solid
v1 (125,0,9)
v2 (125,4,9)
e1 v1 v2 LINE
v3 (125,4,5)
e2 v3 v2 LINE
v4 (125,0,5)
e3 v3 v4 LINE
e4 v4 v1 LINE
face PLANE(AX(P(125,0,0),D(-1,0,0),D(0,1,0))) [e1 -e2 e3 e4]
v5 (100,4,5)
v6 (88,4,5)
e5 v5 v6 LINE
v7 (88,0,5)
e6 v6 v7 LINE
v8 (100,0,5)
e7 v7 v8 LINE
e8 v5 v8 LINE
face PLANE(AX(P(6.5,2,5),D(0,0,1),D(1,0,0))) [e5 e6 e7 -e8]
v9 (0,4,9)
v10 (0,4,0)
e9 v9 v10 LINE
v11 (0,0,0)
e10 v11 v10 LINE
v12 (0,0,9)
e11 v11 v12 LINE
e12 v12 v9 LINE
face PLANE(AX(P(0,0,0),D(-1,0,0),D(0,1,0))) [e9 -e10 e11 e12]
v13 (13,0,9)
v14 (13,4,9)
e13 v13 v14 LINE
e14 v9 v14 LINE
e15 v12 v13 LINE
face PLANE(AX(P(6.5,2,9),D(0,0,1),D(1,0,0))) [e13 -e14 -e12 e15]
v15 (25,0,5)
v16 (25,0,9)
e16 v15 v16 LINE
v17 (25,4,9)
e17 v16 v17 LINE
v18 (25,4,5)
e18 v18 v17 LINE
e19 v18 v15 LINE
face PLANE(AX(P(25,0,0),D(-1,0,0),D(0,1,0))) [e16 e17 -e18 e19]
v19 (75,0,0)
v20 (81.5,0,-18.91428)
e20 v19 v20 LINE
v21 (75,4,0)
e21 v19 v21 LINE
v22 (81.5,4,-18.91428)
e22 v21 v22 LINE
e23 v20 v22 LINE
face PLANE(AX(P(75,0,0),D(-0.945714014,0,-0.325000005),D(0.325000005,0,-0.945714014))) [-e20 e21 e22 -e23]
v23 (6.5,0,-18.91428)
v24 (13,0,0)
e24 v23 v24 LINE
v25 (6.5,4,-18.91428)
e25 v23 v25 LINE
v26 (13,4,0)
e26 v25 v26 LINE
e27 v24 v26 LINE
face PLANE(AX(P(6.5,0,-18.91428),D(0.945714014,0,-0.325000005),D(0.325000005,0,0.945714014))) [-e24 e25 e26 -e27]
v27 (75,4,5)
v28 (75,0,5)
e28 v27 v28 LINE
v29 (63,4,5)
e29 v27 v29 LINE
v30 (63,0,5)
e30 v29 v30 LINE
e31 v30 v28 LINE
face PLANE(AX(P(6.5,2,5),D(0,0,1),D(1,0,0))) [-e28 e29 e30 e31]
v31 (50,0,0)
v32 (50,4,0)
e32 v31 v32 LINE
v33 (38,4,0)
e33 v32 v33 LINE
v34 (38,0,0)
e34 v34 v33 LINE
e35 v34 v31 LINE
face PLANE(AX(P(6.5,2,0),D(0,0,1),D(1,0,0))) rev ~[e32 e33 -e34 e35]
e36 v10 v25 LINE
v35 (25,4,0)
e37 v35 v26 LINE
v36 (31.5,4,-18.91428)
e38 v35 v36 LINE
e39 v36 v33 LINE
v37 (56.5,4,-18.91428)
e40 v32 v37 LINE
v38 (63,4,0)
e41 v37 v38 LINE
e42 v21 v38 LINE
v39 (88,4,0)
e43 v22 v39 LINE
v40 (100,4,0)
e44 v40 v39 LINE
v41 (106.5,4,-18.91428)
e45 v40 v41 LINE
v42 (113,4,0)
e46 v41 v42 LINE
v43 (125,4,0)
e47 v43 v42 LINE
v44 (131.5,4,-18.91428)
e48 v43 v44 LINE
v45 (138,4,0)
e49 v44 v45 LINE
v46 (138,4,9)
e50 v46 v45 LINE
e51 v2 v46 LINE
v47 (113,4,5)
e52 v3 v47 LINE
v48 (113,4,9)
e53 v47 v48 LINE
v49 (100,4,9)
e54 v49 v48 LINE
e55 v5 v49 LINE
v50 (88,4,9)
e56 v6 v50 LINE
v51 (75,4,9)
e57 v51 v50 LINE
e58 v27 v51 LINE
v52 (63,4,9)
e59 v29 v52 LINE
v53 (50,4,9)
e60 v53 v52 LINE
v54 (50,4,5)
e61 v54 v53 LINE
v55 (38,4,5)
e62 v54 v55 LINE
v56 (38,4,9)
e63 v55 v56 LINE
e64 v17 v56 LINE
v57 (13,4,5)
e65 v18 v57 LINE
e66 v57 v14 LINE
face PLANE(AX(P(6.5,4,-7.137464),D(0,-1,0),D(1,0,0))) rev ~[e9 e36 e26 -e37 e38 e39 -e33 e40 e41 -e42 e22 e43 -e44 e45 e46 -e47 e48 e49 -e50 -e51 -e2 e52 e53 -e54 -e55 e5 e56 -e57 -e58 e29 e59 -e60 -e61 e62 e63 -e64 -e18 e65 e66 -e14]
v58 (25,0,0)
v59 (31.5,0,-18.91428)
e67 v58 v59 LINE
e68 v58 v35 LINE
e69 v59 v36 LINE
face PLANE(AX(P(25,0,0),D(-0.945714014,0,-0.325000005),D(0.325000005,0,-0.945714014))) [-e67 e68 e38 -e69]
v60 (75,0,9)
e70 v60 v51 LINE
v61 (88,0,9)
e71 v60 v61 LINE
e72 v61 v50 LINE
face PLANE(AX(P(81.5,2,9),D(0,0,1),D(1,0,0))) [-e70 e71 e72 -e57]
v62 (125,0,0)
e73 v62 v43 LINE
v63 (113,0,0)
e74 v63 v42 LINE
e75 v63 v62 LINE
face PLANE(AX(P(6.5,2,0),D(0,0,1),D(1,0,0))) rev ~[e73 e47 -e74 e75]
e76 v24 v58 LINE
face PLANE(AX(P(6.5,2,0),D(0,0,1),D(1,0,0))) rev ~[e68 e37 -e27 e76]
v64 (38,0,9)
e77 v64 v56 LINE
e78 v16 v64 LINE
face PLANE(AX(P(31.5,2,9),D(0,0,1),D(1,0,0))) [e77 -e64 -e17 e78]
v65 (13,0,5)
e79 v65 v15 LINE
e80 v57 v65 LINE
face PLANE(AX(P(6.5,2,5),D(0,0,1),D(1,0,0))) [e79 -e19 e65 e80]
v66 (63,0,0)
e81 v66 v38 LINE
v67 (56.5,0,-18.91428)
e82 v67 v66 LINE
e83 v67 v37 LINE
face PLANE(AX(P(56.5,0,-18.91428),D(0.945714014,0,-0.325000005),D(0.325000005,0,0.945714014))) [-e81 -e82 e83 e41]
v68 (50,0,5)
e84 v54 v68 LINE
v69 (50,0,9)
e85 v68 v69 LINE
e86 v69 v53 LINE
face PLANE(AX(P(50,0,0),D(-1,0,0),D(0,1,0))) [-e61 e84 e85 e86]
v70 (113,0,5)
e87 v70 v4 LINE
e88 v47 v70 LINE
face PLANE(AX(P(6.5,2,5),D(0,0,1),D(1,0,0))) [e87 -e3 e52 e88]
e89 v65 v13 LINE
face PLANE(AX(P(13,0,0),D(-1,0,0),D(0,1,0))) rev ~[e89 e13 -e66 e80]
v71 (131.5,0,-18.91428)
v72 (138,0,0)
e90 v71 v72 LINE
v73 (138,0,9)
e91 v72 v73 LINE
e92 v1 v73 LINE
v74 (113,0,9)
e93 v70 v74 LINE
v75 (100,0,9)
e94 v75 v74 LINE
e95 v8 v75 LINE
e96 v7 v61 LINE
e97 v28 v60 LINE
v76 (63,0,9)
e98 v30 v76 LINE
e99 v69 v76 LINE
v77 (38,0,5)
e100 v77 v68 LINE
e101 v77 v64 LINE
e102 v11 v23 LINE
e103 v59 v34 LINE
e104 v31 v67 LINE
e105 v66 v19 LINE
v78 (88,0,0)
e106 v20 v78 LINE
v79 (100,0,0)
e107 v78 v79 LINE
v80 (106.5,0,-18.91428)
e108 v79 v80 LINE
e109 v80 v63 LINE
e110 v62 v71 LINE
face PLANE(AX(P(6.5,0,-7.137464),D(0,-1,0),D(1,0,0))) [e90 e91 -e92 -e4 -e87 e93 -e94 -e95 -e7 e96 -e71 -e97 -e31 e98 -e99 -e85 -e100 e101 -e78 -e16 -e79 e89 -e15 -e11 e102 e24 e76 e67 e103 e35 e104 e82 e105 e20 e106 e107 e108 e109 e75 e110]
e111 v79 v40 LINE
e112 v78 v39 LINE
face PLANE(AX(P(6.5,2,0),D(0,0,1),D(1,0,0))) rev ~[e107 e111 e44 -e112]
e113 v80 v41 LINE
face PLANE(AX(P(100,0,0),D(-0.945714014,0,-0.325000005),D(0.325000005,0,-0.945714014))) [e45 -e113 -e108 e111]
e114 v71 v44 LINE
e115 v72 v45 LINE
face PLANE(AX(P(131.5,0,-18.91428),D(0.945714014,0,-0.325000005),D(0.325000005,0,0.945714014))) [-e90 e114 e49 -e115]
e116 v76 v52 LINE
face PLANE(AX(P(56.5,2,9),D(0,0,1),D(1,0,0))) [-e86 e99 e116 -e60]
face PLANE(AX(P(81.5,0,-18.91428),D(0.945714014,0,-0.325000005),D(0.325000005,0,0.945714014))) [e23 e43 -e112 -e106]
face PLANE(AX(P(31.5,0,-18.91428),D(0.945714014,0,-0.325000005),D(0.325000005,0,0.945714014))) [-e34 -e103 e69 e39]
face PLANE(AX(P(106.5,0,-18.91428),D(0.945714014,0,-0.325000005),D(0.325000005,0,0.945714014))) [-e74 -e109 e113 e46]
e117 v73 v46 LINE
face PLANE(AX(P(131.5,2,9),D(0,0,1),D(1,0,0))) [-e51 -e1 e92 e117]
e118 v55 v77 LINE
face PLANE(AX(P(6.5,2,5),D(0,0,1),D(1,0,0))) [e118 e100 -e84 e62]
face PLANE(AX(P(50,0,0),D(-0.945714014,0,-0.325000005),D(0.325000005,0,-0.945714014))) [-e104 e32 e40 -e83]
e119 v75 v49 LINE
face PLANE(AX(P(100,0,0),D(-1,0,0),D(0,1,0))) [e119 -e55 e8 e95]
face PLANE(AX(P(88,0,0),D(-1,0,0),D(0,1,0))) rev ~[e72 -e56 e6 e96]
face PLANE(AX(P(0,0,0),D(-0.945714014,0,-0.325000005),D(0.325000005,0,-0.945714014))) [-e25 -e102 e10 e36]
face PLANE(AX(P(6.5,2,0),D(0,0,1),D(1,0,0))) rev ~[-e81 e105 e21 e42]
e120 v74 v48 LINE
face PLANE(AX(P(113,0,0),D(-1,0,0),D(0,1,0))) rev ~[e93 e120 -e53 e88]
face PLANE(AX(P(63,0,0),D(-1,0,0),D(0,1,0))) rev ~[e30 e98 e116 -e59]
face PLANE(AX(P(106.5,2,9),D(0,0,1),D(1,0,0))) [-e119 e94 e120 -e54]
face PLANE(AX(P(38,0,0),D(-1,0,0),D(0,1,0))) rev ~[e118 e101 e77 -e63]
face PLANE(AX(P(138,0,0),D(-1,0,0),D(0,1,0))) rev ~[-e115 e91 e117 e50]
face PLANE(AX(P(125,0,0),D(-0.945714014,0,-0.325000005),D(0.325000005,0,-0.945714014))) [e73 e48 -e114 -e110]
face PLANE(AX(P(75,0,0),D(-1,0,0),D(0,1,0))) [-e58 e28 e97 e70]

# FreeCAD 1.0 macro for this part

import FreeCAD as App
import Part
import Sketcher

V = App.Vector
Q = App.Units.Quantity

doc = App.newDocument("Part")
params = doc.addObject("Spreadsheet::Sheet", "Params")
for row, (alias, value) in enumerate([
    ("sketch1_width", "138 mm"),
    ("sketch1_height", "4 mm"),
    ("pad1_length", "5 mm"),
    ("sketch2_width", "13 mm"),
    ("sketch2_height", "4 mm"),
    ("pad2_length", "9 mm"),
    ("sketch3_width", "13 mm"),
    ("sketch3_length", "20 mm"),
    ("pad3_length", "4 mm"),
], start=1):
    params.set(f"A{row}", alias)
    params.set(f"B{row}", "=" + value)
    params.setAlias(f"B{row}", alias)

body = doc.addObject("PartDesign::Body", "Body")

sketch1 = doc.addObject("Sketcher::SketchObject", "Sketch")
body.addObject(sketch1)
sketch1.AttachmentSupport = (doc.XY_Plane, [""])
sketch1.MapMode = "FlatFace"
sketch1.addGeometry([
    Part.LineSegment(V(0, 4, 0), V(0, 0, 0)),
    Part.LineSegment(V(0, 0, 0), V(138, 0, 0)),
    Part.LineSegment(V(138, 0, 0), V(138, 4, 0)),
    Part.LineSegment(V(138, 4, 0), V(0, 4, 0)),
], False)
sketch1.addConstraint([
    Sketcher.Constraint("Coincident", 0, 2, 1, 1),
    Sketcher.Constraint("Coincident", 1, 2, 2, 1),
    Sketcher.Constraint("Coincident", 2, 2, 3, 1),
    Sketcher.Constraint("Coincident", 3, 2, 0, 1),
    Sketcher.Constraint("Vertical", 0),
    Sketcher.Constraint("Horizontal", 1),
    Sketcher.Constraint("Vertical", 2),
    Sketcher.Constraint("Horizontal", 3),
    Sketcher.Constraint("Coincident", 0, 2, -1, 1),
    Sketcher.Constraint("DistanceX", 1, 1, 1, 2, Q("138 mm")),
    Sketcher.Constraint("DistanceY", 0, 2, 0, 1, Q("4 mm")),
])
sketch1.setExpression("Constraints[9]", "Params.sketch1_width")
sketch1.setExpression("Constraints[10]", "Params.sketch1_height")
pad1 = doc.addObject("PartDesign::Pad", "Pad")
body.addObject(pad1)
pad1.Profile = sketch1
pad1.setExpression("Length", "Params.pad1_length")

sketch2 = doc.addObject("Sketcher::SketchObject", "Sketch001")
body.addObject(sketch2)
sketch2.AttachmentSupport = (doc.XY_Plane, [""])
sketch2.MapMode = "FlatFace"
sketch2.addGeometry([
    Part.LineSegment(V(0, 4, 0), V(0, 0, 0)),
    Part.LineSegment(V(0, 0, 0), V(13, 0, 0)),
    Part.LineSegment(V(13, 0, 0), V(13, 4, 0)),
    Part.LineSegment(V(13, 4, 0), V(0, 4, 0)),
    Part.LineSegment(V(25, 4, 0), V(25, 0, 0)),
    Part.LineSegment(V(25, 0, 0), V(38, 0, 0)),
    Part.LineSegment(V(38, 0, 0), V(38, 4, 0)),
    Part.LineSegment(V(38, 4, 0), V(25, 4, 0)),
    Part.LineSegment(V(50, 4, 0), V(50, 0, 0)),
    Part.LineSegment(V(50, 0, 0), V(63, 0, 0)),
    Part.LineSegment(V(63, 0, 0), V(63, 4, 0)),
    Part.LineSegment(V(63, 4, 0), V(50, 4, 0)),
    Part.LineSegment(V(75, 4, 0), V(75, 0, 0)),
    Part.LineSegment(V(75, 0, 0), V(88, 0, 0)),
    Part.LineSegment(V(88, 0, 0), V(88, 4, 0)),
    Part.LineSegment(V(88, 4, 0), V(75, 4, 0)),
    Part.LineSegment(V(100, 4, 0), V(100, 0, 0)),
    Part.LineSegment(V(100, 0, 0), V(113, 0, 0)),
    Part.LineSegment(V(113, 0, 0), V(113, 4, 0)),
    Part.LineSegment(V(113, 4, 0), V(100, 4, 0)),
    Part.LineSegment(V(125, 4, 0), V(125, 0, 0)),
    Part.LineSegment(V(125, 0, 0), V(138, 0, 0)),
    Part.LineSegment(V(138, 0, 0), V(138, 4, 0)),
    Part.LineSegment(V(138, 4, 0), V(125, 4, 0)),
], False)
sketch2.addConstraint([
    Sketcher.Constraint("Coincident", 0, 2, 1, 1),
    Sketcher.Constraint("Coincident", 1, 2, 2, 1),
    Sketcher.Constraint("Coincident", 2, 2, 3, 1),
    Sketcher.Constraint("Coincident", 3, 2, 0, 1),
    Sketcher.Constraint("Coincident", 4, 2, 5, 1),
    Sketcher.Constraint("Coincident", 5, 2, 6, 1),
    Sketcher.Constraint("Coincident", 6, 2, 7, 1),
    Sketcher.Constraint("Coincident", 7, 2, 4, 1),
    Sketcher.Constraint("Coincident", 8, 2, 9, 1),
    Sketcher.Constraint("Coincident", 9, 2, 10, 1),
    Sketcher.Constraint("Coincident", 10, 2, 11, 1),
    Sketcher.Constraint("Coincident", 11, 2, 8, 1),
    Sketcher.Constraint("Coincident", 12, 2, 13, 1),
    Sketcher.Constraint("Coincident", 13, 2, 14, 1),
    Sketcher.Constraint("Coincident", 14, 2, 15, 1),
    Sketcher.Constraint("Coincident", 15, 2, 12, 1),
    Sketcher.Constraint("Coincident", 16, 2, 17, 1),
    Sketcher.Constraint("Coincident", 17, 2, 18, 1),
    Sketcher.Constraint("Coincident", 18, 2, 19, 1),
    Sketcher.Constraint("Coincident", 19, 2, 16, 1),
    Sketcher.Constraint("Coincident", 20, 2, 21, 1),
    Sketcher.Constraint("Coincident", 21, 2, 22, 1),
    Sketcher.Constraint("Coincident", 22, 2, 23, 1),
    Sketcher.Constraint("Coincident", 23, 2, 20, 1),
    Sketcher.Constraint("Vertical", 0),
    Sketcher.Constraint("Horizontal", 1),
    Sketcher.Constraint("Vertical", 2),
    Sketcher.Constraint("Horizontal", 3),
    Sketcher.Constraint("Vertical", 4),
    Sketcher.Constraint("Horizontal", 5),
    Sketcher.Constraint("Vertical", 6),
    Sketcher.Constraint("Horizontal", 7),
    Sketcher.Constraint("Vertical", 8),
    Sketcher.Constraint("Horizontal", 9),
    Sketcher.Constraint("Vertical", 10),
    Sketcher.Constraint("Horizontal", 11),
    Sketcher.Constraint("Vertical", 12),
    Sketcher.Constraint("Horizontal", 13),
    Sketcher.Constraint("Vertical", 14),
    Sketcher.Constraint("Horizontal", 15),
    Sketcher.Constraint("Vertical", 16),
    Sketcher.Constraint("Horizontal", 17),
    Sketcher.Constraint("Vertical", 18),
    Sketcher.Constraint("Horizontal", 19),
    Sketcher.Constraint("Vertical", 20),
    Sketcher.Constraint("Horizontal", 21),
    Sketcher.Constraint("Vertical", 22),
    Sketcher.Constraint("Horizontal", 23),
    Sketcher.Constraint("Coincident", 0, 2, -1, 1),
    Sketcher.Constraint("PointOnObject", 4, 2, -1),
    Sketcher.Constraint("PointOnObject", 8, 2, -1),
    Sketcher.Constraint("PointOnObject", 12, 2, -1),
    Sketcher.Constraint("PointOnObject", 16, 2, -1),
    Sketcher.Constraint("PointOnObject", 20, 2, -1),
    Sketcher.Constraint("Horizontal", 3, 2, 6, 2),
    Sketcher.Constraint("Horizontal", 7, 2, 10, 2),
    Sketcher.Constraint("Horizontal", 11, 2, 14, 2),
    Sketcher.Constraint("Horizontal", 15, 2, 18, 2),
    Sketcher.Constraint("Horizontal", 19, 2, 22, 2),
    Sketcher.Constraint("Equal", 3, 5),
    Sketcher.Constraint("Equal", 7, 9),
    Sketcher.Constraint("Equal", 11, 13),
    Sketcher.Constraint("Equal", 15, 17),
    Sketcher.Constraint("Equal", 19, 21),
    Sketcher.Constraint("DistanceX", 1, 1, 1, 2, Q("13 mm")),
    Sketcher.Constraint("DistanceY", 0, 2, 0, 1, Q("4 mm")),
    Sketcher.Constraint("DistanceX", -1, 1, 4, 2, Q("25 mm")),
    Sketcher.Constraint("DistanceX", -1, 1, 8, 2, Q("50 mm")),
    Sketcher.Constraint("DistanceX", -1, 1, 12, 2, Q("75 mm")),
    Sketcher.Constraint("DistanceX", -1, 1, 16, 2, Q("100 mm")),
    Sketcher.Constraint("DistanceX", -1, 1, 20, 2, Q("125 mm")),
])
sketch2.setExpression("Constraints[64]", "Params.sketch2_width")
sketch2.setExpression("Constraints[65]", "Params.sketch2_height")
pad2 = doc.addObject("PartDesign::Pad", "Pad001")
body.addObject(pad2)
pad2.Profile = sketch2
pad2.setExpression("Length", "Params.pad2_length")

sketch3 = doc.addObject("Sketcher::SketchObject", "Sketch002")
body.addObject(sketch3)
sketch3.AttachmentSupport = (doc.XZ_Plane, [""])
sketch3.MapMode = "FlatFace"
sketch3.addGeometry([
    Part.LineSegment(V(13, 0, 0), V(0, 0, 0)),
    Part.LineSegment(V(0, 0, 0), V(6, -19, 0)),
    Part.LineSegment(V(6, -19, 0), V(13, 0, 0)),
    Part.LineSegment(V(38, 0, 0), V(25, 0, 0)),
    Part.LineSegment(V(25, 0, 0), V(32, -19, 0)),
    Part.LineSegment(V(32, -19, 0), V(38, 0, 0)),
    Part.LineSegment(V(63, 0, 0), V(50, 0, 0)),
    Part.LineSegment(V(50, 0, 0), V(56, -19, 0)),
    Part.LineSegment(V(56, -19, 0), V(63, 0, 0)),
    Part.LineSegment(V(88, 0, 0), V(75, 0, 0)),
    Part.LineSegment(V(75, 0, 0), V(82, -19, 0)),
    Part.LineSegment(V(82, -19, 0), V(88, 0, 0)),
    Part.LineSegment(V(113, 0, 0), V(100, 0, 0)),
    Part.LineSegment(V(100, 0, 0), V(106, -19, 0)),
    Part.LineSegment(V(106, -19, 0), V(113, 0, 0)),
    Part.LineSegment(V(138, 0, 0), V(125, 0, 0)),
    Part.LineSegment(V(125, 0, 0), V(132, -19, 0)),
    Part.LineSegment(V(132, -19, 0), V(138, 0, 0)),
], False)
sketch3.addConstraint([
    Sketcher.Constraint("Coincident", 0, 2, 1, 1),
    Sketcher.Constraint("Coincident", 1, 2, 2, 1),
    Sketcher.Constraint("Coincident", 2, 2, 0, 1),
    Sketcher.Constraint("Coincident", 3, 2, 4, 1),
    Sketcher.Constraint("Coincident", 4, 2, 5, 1),
    Sketcher.Constraint("Coincident", 5, 2, 3, 1),
    Sketcher.Constraint("Coincident", 6, 2, 7, 1),
    Sketcher.Constraint("Coincident", 7, 2, 8, 1),
    Sketcher.Constraint("Coincident", 8, 2, 6, 1),
    Sketcher.Constraint("Coincident", 9, 2, 10, 1),
    Sketcher.Constraint("Coincident", 10, 2, 11, 1),
    Sketcher.Constraint("Coincident", 11, 2, 9, 1),
    Sketcher.Constraint("Coincident", 12, 2, 13, 1),
    Sketcher.Constraint("Coincident", 13, 2, 14, 1),
    Sketcher.Constraint("Coincident", 14, 2, 12, 1),
    Sketcher.Constraint("Coincident", 15, 2, 16, 1),
    Sketcher.Constraint("Coincident", 16, 2, 17, 1),
    Sketcher.Constraint("Coincident", 17, 2, 15, 1),
    Sketcher.Constraint("Horizontal", 0),
    Sketcher.Constraint("Horizontal", 3),
    Sketcher.Constraint("Horizontal", 6),
    Sketcher.Constraint("Horizontal", 9),
    Sketcher.Constraint("Horizontal", 12),
    Sketcher.Constraint("Horizontal", 15),
    Sketcher.Constraint("Coincident", 0, 2, -1, 1),
    Sketcher.Constraint("PointOnObject", 3, 2, -1),
    Sketcher.Constraint("PointOnObject", 6, 2, -1),
    Sketcher.Constraint("PointOnObject", 9, 2, -1),
    Sketcher.Constraint("PointOnObject", 12, 2, -1),
    Sketcher.Constraint("PointOnObject", 15, 2, -1),
    Sketcher.Constraint("Parallel", 1, 4),
    Sketcher.Constraint("Parallel", 2, 5),
    Sketcher.Constraint("Parallel", 4, 7),
    Sketcher.Constraint("Parallel", 5, 8),
    Sketcher.Constraint("Parallel", 7, 10),
    Sketcher.Constraint("Parallel", 8, 11),
    Sketcher.Constraint("Parallel", 10, 13),
    Sketcher.Constraint("Parallel", 11, 14),
    Sketcher.Constraint("Parallel", 13, 16),
    Sketcher.Constraint("Parallel", 14, 17),
    Sketcher.Constraint("Horizontal", 1, 2, 4, 2),
    Sketcher.Constraint("Horizontal", 4, 2, 7, 2),
    Sketcher.Constraint("Horizontal", 7, 2, 10, 2),
    Sketcher.Constraint("Horizontal", 10, 2, 13, 2),
    Sketcher.Constraint("Horizontal", 13, 2, 16, 2),
    Sketcher.Constraint("Equal", 1, 2),
    Sketcher.Constraint("DistanceX", 0, 2, 0, 1, Q("13 mm")),
    Sketcher.Constraint("Distance", 1, Q("20 mm")),
    Sketcher.Constraint("DistanceX", -1, 1, 3, 2, Q("25 mm")),
    Sketcher.Constraint("DistanceX", -1, 1, 6, 2, Q("50 mm")),
    Sketcher.Constraint("DistanceX", -1, 1, 9, 2, Q("75 mm")),
    Sketcher.Constraint("DistanceX", -1, 1, 12, 2, Q("100 mm")),
    Sketcher.Constraint("DistanceX", -1, 1, 15, 2, Q("125 mm")),
])
sketch3.setExpression("Constraints[46]", "Params.sketch3_width")
sketch3.setExpression("Constraints[47]", "Params.sketch3_length")
pad3 = doc.addObject("PartDesign::Pad", "Pad002")
body.addObject(pad3)
pad3.Profile = sketch3
pad3.setExpression("Length", "Params.pad3_length")
pad3.Reversed = True

doc.recompute()
